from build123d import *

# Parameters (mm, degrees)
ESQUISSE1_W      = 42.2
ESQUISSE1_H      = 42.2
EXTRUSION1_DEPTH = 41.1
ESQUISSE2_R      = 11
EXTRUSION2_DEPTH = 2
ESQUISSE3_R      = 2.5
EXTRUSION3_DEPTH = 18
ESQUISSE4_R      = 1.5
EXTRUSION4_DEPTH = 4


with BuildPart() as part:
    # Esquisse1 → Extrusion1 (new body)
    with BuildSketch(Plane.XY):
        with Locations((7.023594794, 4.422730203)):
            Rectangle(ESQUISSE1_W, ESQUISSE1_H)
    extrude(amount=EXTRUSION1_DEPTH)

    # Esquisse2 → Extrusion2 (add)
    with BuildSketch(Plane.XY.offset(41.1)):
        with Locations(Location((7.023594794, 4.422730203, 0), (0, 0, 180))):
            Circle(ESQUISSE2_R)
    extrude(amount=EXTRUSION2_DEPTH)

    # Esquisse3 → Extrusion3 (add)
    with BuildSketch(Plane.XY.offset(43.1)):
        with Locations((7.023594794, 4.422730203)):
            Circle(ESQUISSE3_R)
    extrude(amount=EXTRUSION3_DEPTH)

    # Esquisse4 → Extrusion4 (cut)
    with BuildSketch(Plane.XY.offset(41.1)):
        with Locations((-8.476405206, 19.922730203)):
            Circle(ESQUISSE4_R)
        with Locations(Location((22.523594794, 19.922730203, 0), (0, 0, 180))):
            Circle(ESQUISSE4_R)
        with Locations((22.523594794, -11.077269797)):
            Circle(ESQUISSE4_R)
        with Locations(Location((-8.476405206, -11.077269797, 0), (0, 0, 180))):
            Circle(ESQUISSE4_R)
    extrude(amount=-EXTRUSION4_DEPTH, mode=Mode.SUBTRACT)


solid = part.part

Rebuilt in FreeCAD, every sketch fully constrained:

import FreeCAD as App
import Part
import Sketcher

V = App.Vector

doc = App.newDocument("Part")
body = doc.addObject("PartDesign::Body", "Body")

sketch1 = body.newObject("Sketcher::SketchObject", "Sketch")
sketch1.AttachmentSupport = (doc.getObject("XY_Plane"), [""])
sketch1.MapMode = "FlatFace"
sketch1.addGeometry([
    Part.LineSegment(V(-14, 26, 0), V(-14, -17, 0)),
    Part.LineSegment(V(-14, -17, 0), V(28, -17, 0)),
    Part.LineSegment(V(28, -17, 0), V(28, 26, 0)),
    Part.LineSegment(V(28, 26, 0), V(-14, 26, 0)),
], False)
sketch1.addConstraint([
    Sketcher.Constraint("Coincident", 0, 2, 1, 1),
    Sketcher.Constraint("Coincident", 1, 2, 2, 1),
    Sketcher.Constraint("Coincident", 2, 2, 3, 1),
    Sketcher.Constraint("Coincident", 3, 2, 0, 1),
    Sketcher.Constraint("Vertical", 0),
    Sketcher.Constraint("Horizontal", 1),
    Sketcher.Constraint("Vertical", 2),
    Sketcher.Constraint("Horizontal", 3),
    Sketcher.Constraint("Equal", 3, 0),
    Sketcher.Constraint("DistanceX", 1, 1, 1, 2, 42.2),
    Sketcher.Constraint("DistanceY", 0, 2, -1, 1, 16.67727),
    Sketcher.Constraint("DistanceX", 0, 2, -1, 1, 14.076405),
])
pad1 = body.newObject("PartDesign::Pad", "Pad")
pad1.Profile = sketch1
pad1.Length = 41.1

sketch2 = body.newObject("Sketcher::SketchObject", "Sketch001")
sketch2.AttachmentSupport = (doc.getObject("XY_Plane"), [""])
sketch2.MapMode = "FlatFace"
sketch2.AttachmentOffset = App.Placement(V(0, 0, 41.1), App.Rotation())
sketch2.addGeometry(Part.Circle(V(7, 4, 0), V(0, 0, 1), 11), False)
sketch2.addConstraint([
    Sketcher.Constraint("Diameter", 0, 22.0),
    Sketcher.Constraint("DistanceY", -1, 1, 0, 3, 4.42273),
    Sketcher.Constraint("DistanceX", -1, 1, 0, 3, 7.023595),
])
pad2 = body.newObject("PartDesign::Pad", "Pad001")
pad2.Profile = sketch2
pad2.Length = 2

sketch3 = body.newObject("Sketcher::SketchObject", "Sketch002")
sketch3.AttachmentSupport = (doc.getObject("XY_Plane"), [""])
sketch3.MapMode = "FlatFace"
sketch3.AttachmentOffset = App.Placement(V(0, 0, 43.1), App.Rotation())
sketch3.addGeometry(Part.Circle(V(7, 4.4, 0), V(0, 0, 1), 2.5), False)
sketch3.addConstraint([
    Sketcher.Constraint("Diameter", 0, 5.0),
    Sketcher.Constraint("DistanceY", -1, 1, 0, 3, 4.42273),
    Sketcher.Constraint("DistanceX", -1, 1, 0, 3, 7.023595),
])
pad3 = body.newObject("PartDesign::Pad", "Pad002")
pad3.Profile = sketch3
pad3.Length = 18

sketch4 = body.newObject("Sketcher::SketchObject", "Sketch003")
sketch4.AttachmentSupport = (doc.getObject("XY_Plane"), [""])
sketch4.MapMode = "FlatFace"
sketch4.AttachmentOffset = App.Placement(V(0, 0, 41.1), App.Rotation())
sketch4.addGeometry([
    Part.Circle(V(-8.5, 19.9, 0), V(0, 0, 1), 1.5),
    Part.Circle(V(22.5, 19.9, 0), V(0, 0, 1), 1.5),
    Part.Circle(V(22.5, -11.1, 0), V(0, 0, 1), 1.5),
    Part.Circle(V(-8.5, -11.1, 0), V(0, 0, 1), 1.5),
], False)
sketch4.addConstraint([
    Sketcher.Constraint("Equal", 0, 1),
    Sketcher.Constraint("Equal", 1, 2),
    Sketcher.Constraint("Equal", 2, 3),
    Sketcher.Constraint("Horizontal", 0, 3, 1, 3),
    Sketcher.Constraint("Horizontal", 2, 3, 3, 3),
    Sketcher.Constraint("Vertical", 1, 3, 2, 3),
    Sketcher.Constraint("Vertical", 0, 3, 3, 3),
    Sketcher.Constraint("Diameter", 0, 3.0),
    Sketcher.Constraint("DistanceX", 0, 3, 1, 3, 31.0),
    Sketcher.Constraint("DistanceY", 2, 3, 1, 3, 31.0),
    Sketcher.Constraint("DistanceY", -1, 1, 0, 3, 19.92273),
    Sketcher.Constraint("DistanceX", 0, 3, -1, 1, 8.476405),
])
pocket1 = body.newObject("PartDesign::Pocket", "Pocket")
pocket1.Profile = sketch4
pocket1.Length = 4

doc.recompute()
